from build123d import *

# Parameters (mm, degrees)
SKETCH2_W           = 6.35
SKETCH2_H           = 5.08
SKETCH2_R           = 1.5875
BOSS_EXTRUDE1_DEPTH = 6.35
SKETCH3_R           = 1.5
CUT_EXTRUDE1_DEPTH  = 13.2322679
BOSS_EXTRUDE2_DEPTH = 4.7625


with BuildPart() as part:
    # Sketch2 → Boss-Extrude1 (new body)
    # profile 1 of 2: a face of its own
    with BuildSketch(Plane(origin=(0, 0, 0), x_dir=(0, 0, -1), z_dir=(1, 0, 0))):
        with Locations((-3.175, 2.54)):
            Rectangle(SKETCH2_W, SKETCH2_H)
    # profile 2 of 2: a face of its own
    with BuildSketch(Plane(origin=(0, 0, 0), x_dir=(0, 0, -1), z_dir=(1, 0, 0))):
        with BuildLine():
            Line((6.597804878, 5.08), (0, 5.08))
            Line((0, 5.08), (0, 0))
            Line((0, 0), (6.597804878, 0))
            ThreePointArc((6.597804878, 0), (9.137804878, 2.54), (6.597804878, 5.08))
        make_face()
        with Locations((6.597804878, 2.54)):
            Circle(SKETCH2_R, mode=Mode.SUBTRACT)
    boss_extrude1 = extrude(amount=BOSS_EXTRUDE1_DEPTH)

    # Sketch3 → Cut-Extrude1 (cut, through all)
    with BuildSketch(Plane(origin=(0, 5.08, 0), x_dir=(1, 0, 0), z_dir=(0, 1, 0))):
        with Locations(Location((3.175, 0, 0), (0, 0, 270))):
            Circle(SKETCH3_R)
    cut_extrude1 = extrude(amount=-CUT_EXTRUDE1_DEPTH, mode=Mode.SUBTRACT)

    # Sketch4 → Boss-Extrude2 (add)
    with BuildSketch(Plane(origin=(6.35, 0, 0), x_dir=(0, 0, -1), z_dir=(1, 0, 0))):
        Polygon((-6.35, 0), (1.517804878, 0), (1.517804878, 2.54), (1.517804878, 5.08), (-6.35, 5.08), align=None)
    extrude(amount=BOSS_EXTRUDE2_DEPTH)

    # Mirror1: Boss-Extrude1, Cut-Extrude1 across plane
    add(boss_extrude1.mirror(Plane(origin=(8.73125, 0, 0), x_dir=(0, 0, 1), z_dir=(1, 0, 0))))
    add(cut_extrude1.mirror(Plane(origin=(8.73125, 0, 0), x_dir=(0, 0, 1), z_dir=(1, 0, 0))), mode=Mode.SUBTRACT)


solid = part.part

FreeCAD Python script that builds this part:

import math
import FreeCAD as App
import Part
import Sketcher

V = App.Vector
Q = App.Units.Quantity

doc = App.newDocument("Part")
body = doc.addObject("PartDesign::Body", "Body")

# Sketch on YZ plane
sketch1 = body.newObject("Sketcher::SketchObject", "Sketch")
sketch1.AttachmentSupport = (doc.getObject("YZ_Plane"), [""])
sketch1.MapMode = "FlatFace"
sketch1.addGeometry([
    Part.LineSegment(V(5.1, 6.3, 0), V(0, 6.3, 0)),  # 0
    Part.LineSegment(V(0, 6.3, 0), V(0, -6.6, 0)),  # 1
    Part.ArcOfCircle(Part.Circle(V(2.5, -6.6, 0), V(0, 0, 1), 2.5), math.radians(180), math.radians(360)),  # 2
    Part.LineSegment(V(5.1, -6.6, 0), V(5.1, 6.3, 0)),  # 3
    Part.Circle(V(2.5, -6.6, 0), V(0, 0, 1), 1.6),  # 4
], False)
sketch1.addConstraint([
    Sketcher.Constraint("Coincident", 0, 2, 1, 1),
    Sketcher.Constraint("Tangent", 1, 2, 2, 1),
    Sketcher.Constraint("Tangent", 2, 2, 3, 1),
    Sketcher.Constraint("Coincident", 3, 2, 0, 1),
    Sketcher.Constraint("Horizontal", 0),
    Sketcher.Constraint("Vertical", 1),
    Sketcher.Constraint("Vertical", 3),
    Sketcher.Constraint("Coincident", 4, 3, 2, 3),
    Sketcher.Constraint("PointOnObject", 0, 2, -2),
    Sketcher.Constraint("Radius", 2, Q("0.1 in")),
    Sketcher.Constraint("Diameter", 4, Q("0.125 in")),
    Sketcher.Constraint("DistanceY", -1, 1, 0, 2, Q("0.25 in")),
    Sketcher.Constraint("DistanceY", 1, 2, 1, 1, Q("12.947805 mm")),
])
pad1 = body.newObject("PartDesign::Pad", "Pad")
pad1.Profile = sketch1
pad1.Length = Q("0.25 in")

# Sketch on XZ plane
sketch2 = body.newObject("Sketcher::SketchObject", "Sketch001")
sketch2.AttachmentSupport = (doc.getObject("XZ_Plane"), [""])
sketch2.MapMode = "FlatFace"
sketch2.AttachmentOffset = App.Placement(V(0, 0, -0.2 * 25.4), App.Rotation())
sketch2.addGeometry(Part.Circle(V(3.2, 0, 0), V(0, 0, 1), 1.5), False)
sketch2.addConstraint([
    Sketcher.Constraint("PointOnObject", 0, 3, -1),
    Sketcher.Constraint("Diameter", 0, Q("3 mm")),
    Sketcher.Constraint("DistanceX", -1, 1, 0, 3, Q("0.125 in")),
])
pocket1 = body.newObject("PartDesign::Pocket", "Pocket")
pocket1.Profile = sketch2
pocket1.Type = "ThroughAll"
pocket1.Reversed = True

# Sketch on YZ plane
sketch3 = body.newObject("Sketcher::SketchObject", "Sketch002")
sketch3.AttachmentSupport = (doc.getObject("YZ_Plane"), [""])
sketch3.MapMode = "FlatFace"
sketch3.AttachmentOffset = App.Placement(V(0, 0, 0.25 * 25.4), App.Rotation())
sketch3.addGeometry([
    Part.LineSegment(V(0, 6, 0), V(0, -2, 0)),
    Part.LineSegment(V(0, -2, 0), V(5, -2, 0)),
    Part.LineSegment(V(5, -2, 0), V(5, 6, 0)),
    Part.LineSegment(V(5, 6, 0), V(0, 6, 0)),
], False)
sketch3.addConstraint([
    Sketcher.Constraint("Coincident", 0, 2, 1, 1),
    Sketcher.Constraint("Coincident", 1, 2, 2, 1),
    Sketcher.Constraint("Coincident", 2, 2, 3, 1),
    Sketcher.Constraint("Coincident", 3, 2, 0, 1),
    Sketcher.Constraint("Vertical", 0),
    Sketcher.Constraint("Horizontal", 1),
    Sketcher.Constraint("Vertical", 2),
    Sketcher.Constraint("Horizontal", 3),
    Sketcher.Constraint("PointOnObject", 0, 2, -2),
    Sketcher.Constraint("DistanceX", 1, 1, 1, 2, Q("0.2 in")),
    Sketcher.Constraint("DistanceY", -1, 1, 2, 2, Q("0.25 in")),
    Sketcher.Constraint("DistanceY", 0, 2, 0, 1, Q("7.867805 mm")),
])
pad2 = body.newObject("PartDesign::Pad", "Pad001")
pad2.Profile = sketch3
pad2.Length = Q("0.1875 in")
doc.recompute()

datumplane = body.newObject("PartDesign::Plane", "DatumPlane")
datumplane.AttachmentSupport = (doc.getObject("YZ_Plane"), [""])
datumplane.MapMode = "FlatFace"
datumplane.AttachmentOffset = App.Placement(V(0, 0, 0.34375 * 25.4), App.Rotation())
mirrored = body.newObject("PartDesign::Mirrored", "Mirrored")
mirrored.Originals = [pad1, pocket1]
mirrored.MirrorPlane = (datumplane, [""])
body.Tip = mirrored

doc.recompute()
